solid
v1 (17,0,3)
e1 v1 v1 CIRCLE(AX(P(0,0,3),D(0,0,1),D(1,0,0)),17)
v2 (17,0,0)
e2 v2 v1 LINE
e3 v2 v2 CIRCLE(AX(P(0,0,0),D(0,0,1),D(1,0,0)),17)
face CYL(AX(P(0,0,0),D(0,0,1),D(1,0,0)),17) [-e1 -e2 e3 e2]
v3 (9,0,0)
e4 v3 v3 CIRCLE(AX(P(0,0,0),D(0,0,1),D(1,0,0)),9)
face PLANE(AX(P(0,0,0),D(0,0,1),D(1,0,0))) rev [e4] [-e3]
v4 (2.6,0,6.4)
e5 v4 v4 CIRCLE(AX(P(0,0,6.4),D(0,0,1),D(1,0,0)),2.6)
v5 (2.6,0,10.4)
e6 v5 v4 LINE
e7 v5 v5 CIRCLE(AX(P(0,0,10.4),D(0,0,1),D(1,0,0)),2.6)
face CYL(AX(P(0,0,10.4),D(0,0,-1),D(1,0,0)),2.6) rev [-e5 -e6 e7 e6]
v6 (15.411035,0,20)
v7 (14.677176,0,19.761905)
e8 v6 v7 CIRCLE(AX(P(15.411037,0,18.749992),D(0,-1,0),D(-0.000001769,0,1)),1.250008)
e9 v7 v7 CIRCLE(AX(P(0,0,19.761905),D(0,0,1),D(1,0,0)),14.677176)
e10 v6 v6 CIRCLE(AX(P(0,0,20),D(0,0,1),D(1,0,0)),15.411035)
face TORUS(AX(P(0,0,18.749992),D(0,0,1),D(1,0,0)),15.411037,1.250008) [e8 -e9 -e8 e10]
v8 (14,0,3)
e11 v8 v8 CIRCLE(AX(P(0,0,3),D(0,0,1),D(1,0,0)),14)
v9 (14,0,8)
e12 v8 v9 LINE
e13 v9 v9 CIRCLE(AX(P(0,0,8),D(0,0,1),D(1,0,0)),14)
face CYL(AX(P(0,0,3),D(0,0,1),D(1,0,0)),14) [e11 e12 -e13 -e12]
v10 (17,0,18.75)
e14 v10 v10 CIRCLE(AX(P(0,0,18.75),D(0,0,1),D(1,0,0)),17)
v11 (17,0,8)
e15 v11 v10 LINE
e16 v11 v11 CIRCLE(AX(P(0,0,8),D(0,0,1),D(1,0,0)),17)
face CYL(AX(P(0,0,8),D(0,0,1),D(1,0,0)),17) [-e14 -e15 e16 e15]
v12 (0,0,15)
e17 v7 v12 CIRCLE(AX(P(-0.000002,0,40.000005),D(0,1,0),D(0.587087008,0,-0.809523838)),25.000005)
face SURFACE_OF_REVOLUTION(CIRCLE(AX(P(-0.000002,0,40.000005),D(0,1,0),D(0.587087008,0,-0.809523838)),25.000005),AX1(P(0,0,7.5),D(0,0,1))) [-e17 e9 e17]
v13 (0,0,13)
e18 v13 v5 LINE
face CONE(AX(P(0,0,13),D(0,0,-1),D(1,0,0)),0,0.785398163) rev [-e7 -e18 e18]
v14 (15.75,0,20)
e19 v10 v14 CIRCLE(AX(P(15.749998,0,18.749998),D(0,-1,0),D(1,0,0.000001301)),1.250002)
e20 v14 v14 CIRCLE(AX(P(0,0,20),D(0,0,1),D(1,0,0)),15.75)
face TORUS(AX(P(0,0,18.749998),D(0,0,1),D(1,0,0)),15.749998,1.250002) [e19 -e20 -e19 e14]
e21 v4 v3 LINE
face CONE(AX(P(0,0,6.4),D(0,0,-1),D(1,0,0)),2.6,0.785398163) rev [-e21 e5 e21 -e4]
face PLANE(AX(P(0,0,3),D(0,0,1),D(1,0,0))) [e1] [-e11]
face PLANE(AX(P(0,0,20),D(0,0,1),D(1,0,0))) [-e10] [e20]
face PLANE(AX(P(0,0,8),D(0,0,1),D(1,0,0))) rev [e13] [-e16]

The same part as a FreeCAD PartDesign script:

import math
import FreeCAD as App
import Part
import Sketcher
from FreeCAD import Vector
Q = App.Units.Quantity

doc = App.newDocument("Part")
body = doc.addObject("PartDesign::Body", "Body")

# Sketch on XZ plane
sketch1 = body.newObject("Sketcher::SketchObject", "Sketch")
sketch1.AttachmentSupport = (doc.getObject("XZ_Plane"), [""])
sketch1.MapMode = "FlatFace"
sketch1.addGeometry([
    Part.ArcOfCircle(Part.Circle(Vector(0, 40, 0), Vector(0, 0, 1), 25), math.radians(-90), math.radians(-54)),  # 0
    Part.LineSegment(Vector(0, 15, 0), Vector(0, 13, 0)),  # 1
    Part.LineSegment(Vector(0, 13, 0), Vector(2.6, 10.4, 0)),  # 2
    Part.LineSegment(Vector(2.6, 10.4, 0), Vector(2.6, 6.4, 0)),  # 3
    Part.LineSegment(Vector(2.6, 6.4, 0), Vector(9, 0, 0)),  # 4
    Part.LineSegment(Vector(9, 0, 0), Vector(17, 0, 0)),  # 5
    Part.LineSegment(Vector(17, 0, 0), Vector(17, 3, 0)),  # 6
    Part.LineSegment(Vector(17, 3, 0), Vector(14, 3, 0)),  # 7
    Part.LineSegment(Vector(14, 3, 0), Vector(14, 8, 0)),  # 8
    Part.LineSegment(Vector(14, 8, 0), Vector(17, 8, 0)),  # 9
    Part.LineSegment(Vector(17, 8, 0), Vector(17, 18.75, 0)),  # 10
    Part.ArcOfCircle(Part.Circle(Vector(15.75, 18.75, 0), Vector(0, 0, 1), 1.25), math.radians(0), math.radians(90)),  # 11
    Part.LineSegment(Vector(15.75, 20, 0), Vector(15.41, 20, 0)),  # 12
    Part.ArcOfCircle(Part.Circle(Vector(15.41, 18.75, 0), Vector(0, 0, 1), 1.25), math.radians(90), math.radians(126)),  # 13
], False)
sketch1.addConstraint([
    Sketcher.Constraint("Coincident", 0, 1, 1, 1),
    Sketcher.Constraint("Coincident", 1, 2, 2, 1),
    Sketcher.Constraint("Coincident", 2, 2, 3, 1),
    Sketcher.Constraint("Coincident", 3, 2, 4, 1),
    Sketcher.Constraint("Coincident", 4, 2, 5, 1),
    Sketcher.Constraint("Coincident", 5, 2, 6, 1),
    Sketcher.Constraint("Coincident", 6, 2, 7, 1),
    Sketcher.Constraint("Coincident", 7, 2, 8, 1),
    Sketcher.Constraint("Coincident", 8, 2, 9, 1),
    Sketcher.Constraint("Coincident", 9, 2, 10, 1),
    Sketcher.Constraint("Tangent", 10, 2, 11, 1),
    Sketcher.Constraint("Tangent", 11, 2, 12, 1),
    Sketcher.Constraint("Tangent", 12, 2, 13, 1),
    Sketcher.Constraint("Coincident", 13, 2, 0, 2),
    Sketcher.Constraint("Vertical", 1),
    Sketcher.Constraint("Vertical", 3),
    Sketcher.Constraint("Horizontal", 5),
    Sketcher.Constraint("Vertical", 6),
    Sketcher.Constraint("Horizontal", 7),
    Sketcher.Constraint("Vertical", 8),
    Sketcher.Constraint("Horizontal", 9),
    Sketcher.Constraint("Vertical", 10),
    Sketcher.Constraint("Horizontal", 12),
    Sketcher.Constraint("PointOnObject", 0, 1, -2),
    Sketcher.Constraint("PointOnObject", 4, 2, -1),
    Sketcher.Constraint("Parallel", 2, 4),
    Sketcher.Constraint("Vertical", 6, 2, 9, 2),
    Sketcher.Constraint("Equal", 9, 6),
    Sketcher.Constraint("DistanceX", 5, 1, 5, 2, Q("8 mm")),
    Sketcher.Constraint("DistanceX", 7, 2, 7, 1, Q("3 mm")),
    Sketcher.Constraint("DistanceY", 1, 2, 1, 1, Q("2 mm")),
    Sketcher.Constraint("DistanceY", 3, 2, 3, 1, Q("4 mm")),
    Sketcher.Constraint("DistanceY", 8, 1, 8, 2, Q("5 mm")),
    Sketcher.Constraint("Angle", 2, Q("-45 deg")),
    Sketcher.Constraint("Radius", 11, Q("1.250002 mm")),
    Sketcher.Constraint("DistanceY", -1, 1, 0, 1, Q("15 mm")),
    Sketcher.Constraint("DistanceY", -1, 1, 11, 2, Q("20 mm")),
    Sketcher.Constraint("DistanceX", -1, 1, 2, 2, Q("2.6 mm")),
    Sketcher.Constraint("Radius", 13, Q("1.250008 mm")),
    Sketcher.Constraint("DistanceX", 0, 3, 11, 3, Q("15.750001 mm")),
    Sketcher.Constraint("Radius", 0, Q("25.000005 mm")),
    Sketcher.Constraint("DistanceX", 13, 2, 12, 2, Q("0.733859 mm")),
])
revolution = body.newObject("PartDesign::Revolution", "Revolution")
revolution.Profile = sketch1
revolution.ReferenceAxis = (sketch1, ["V_Axis"])
revolution.Angle = 360

doc.recompute()
